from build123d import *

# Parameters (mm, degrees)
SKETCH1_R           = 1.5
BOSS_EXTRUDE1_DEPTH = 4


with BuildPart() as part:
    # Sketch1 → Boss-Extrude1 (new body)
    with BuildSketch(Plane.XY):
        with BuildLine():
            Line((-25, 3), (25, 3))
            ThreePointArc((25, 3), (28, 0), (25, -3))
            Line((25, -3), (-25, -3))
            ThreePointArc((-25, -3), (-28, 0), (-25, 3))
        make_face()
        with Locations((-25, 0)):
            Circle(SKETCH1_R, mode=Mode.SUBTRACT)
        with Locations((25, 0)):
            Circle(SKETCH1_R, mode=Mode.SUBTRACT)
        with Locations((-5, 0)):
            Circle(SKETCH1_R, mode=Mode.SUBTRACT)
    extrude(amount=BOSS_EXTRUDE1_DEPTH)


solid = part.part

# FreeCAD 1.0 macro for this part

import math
import FreeCAD as App
import Part
import Sketcher

V = App.Vector
Q = App.Units.Quantity

doc = App.newDocument("Part")
body = doc.addObject("PartDesign::Body", "Body")

# Sketch on XY plane
sketch1 = body.newObject("Sketcher::SketchObject", "Sketch")
sketch1.AttachmentSupport = (doc.getObject("XY_Plane"), [""])
sketch1.MapMode = "FlatFace"
sketch1.addGeometry(Part.LineSegment(V(25, 3, 0), V(-25, 3, 0)), False)
sketch1.addGeometry(Part.ArcOfCircle(Part.Circle(V(-25, 0, 0), V(0, 0, 1), 3), math.radians(90), math.radians(270)), False)
sketch1.addGeometry(Part.LineSegment(V(-25, -3, 0), V(25, -3, 0)), False)
sketch1.addGeometry(Part.ArcOfCircle(Part.Circle(V(25, 0, 0), V(0, 0, 1), 3), math.radians(-90), math.radians(90)), False)
sketch1.addGeometry(Part.Circle(V(25, 0, 0), V(0, 0, 1), 1.5), False)
sketch1.addGeometry(Part.Circle(V(-5, 0, 0), V(0, 0, 1), 1.5), False)
sketch1.addGeometry(Part.Circle(V(-25, 0, 0), V(0, 0, 1), 1.5), False)
sketch1.addConstraint(Sketcher.Constraint("Tangent", 0, 2, 1, 1))
sketch1.addConstraint(Sketcher.Constraint("Tangent", 1, 2, 2, 1))
sketch1.addConstraint(Sketcher.Constraint("Tangent", 2, 2, 3, 1))
sketch1.addConstraint(Sketcher.Constraint("Tangent", 3, 2, 0, 1))
sketch1.addConstraint(Sketcher.Constraint("Horizontal", 0))
sketch1.addConstraint(Sketcher.Constraint("Horizontal", 2))
sketch1.addConstraint(Sketcher.Constraint("Coincident", 4, 3, 3, 3))
sketch1.addConstraint(Sketcher.Constraint("Coincident", 6, 3, 1, 3))
sketch1.addConstraint(Sketcher.Constraint("Equal", 4, 5))
sketch1.addConstraint(Sketcher.Constraint("Equal", 5, 6))
sketch1.addConstraint(Sketcher.Constraint("Symmetric", 1, 3, 3, 3, -1, 1))
sketch1.addConstraint(Sketcher.Constraint("PointOnObject", 5, 3, -1))
sketch1.addConstraint(Sketcher.Constraint("Diameter", 4, Q("3 mm")))
sketch1.addConstraint(Sketcher.Constraint("Radius", 1, Q("3 mm")))
sketch1.addConstraint(Sketcher.Constraint("DistanceX", 0, 2, 0, 1, Q("50 mm")))
sketch1.addConstraint(Sketcher.Constraint("DistanceX", 5, 3, -1, 1, Q("5 mm")))
pad1 = body.newObject("PartDesign::Pad", "Pad")
pad1.Profile = sketch1
pad1.Length = 4

doc.recompute()
